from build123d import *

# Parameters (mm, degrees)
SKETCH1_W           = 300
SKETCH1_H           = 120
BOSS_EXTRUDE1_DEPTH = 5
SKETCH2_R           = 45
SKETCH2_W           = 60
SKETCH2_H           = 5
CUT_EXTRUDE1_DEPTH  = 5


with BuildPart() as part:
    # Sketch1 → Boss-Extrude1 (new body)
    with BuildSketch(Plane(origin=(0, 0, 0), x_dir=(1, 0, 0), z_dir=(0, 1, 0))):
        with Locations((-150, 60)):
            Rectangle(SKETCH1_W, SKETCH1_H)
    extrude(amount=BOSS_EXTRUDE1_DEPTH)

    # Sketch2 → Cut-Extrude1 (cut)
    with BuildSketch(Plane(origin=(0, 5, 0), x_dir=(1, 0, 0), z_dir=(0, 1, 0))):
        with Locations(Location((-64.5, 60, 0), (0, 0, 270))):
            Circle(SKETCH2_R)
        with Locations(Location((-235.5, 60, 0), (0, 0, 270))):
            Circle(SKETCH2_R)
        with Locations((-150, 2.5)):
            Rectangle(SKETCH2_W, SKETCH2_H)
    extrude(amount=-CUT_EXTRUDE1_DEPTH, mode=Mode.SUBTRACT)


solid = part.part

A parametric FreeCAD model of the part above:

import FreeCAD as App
import Part
import Sketcher

V = App.Vector
Q = App.Units.Quantity

doc = App.newDocument("Part")
body = doc.addObject("PartDesign::Body", "Body")

sketch1 = doc.addObject("Sketcher::SketchObject", "Sketch")
body.addObject(sketch1)
sketch1.AttachmentSupport = (doc.XZ_Plane, [""])
sketch1.MapMode = "FlatFace"
sketch1.addGeometry(Part.LineSegment(V(-300, -120, 0), V(-300, 0, 0)), False)
sketch1.addGeometry(Part.LineSegment(V(-300, 0, 0), V(0, 0, 0)), False)
sketch1.addGeometry(Part.LineSegment(V(0, 0, 0), V(0, -120, 0)), False)
sketch1.addGeometry(Part.LineSegment(V(0, -120, 0), V(-300, -120, 0)), False)
sketch1.addConstraint(Sketcher.Constraint("Coincident", 0, 2, 1, 1))
sketch1.addConstraint(Sketcher.Constraint("Coincident", 1, 2, 2, 1))
sketch1.addConstraint(Sketcher.Constraint("Coincident", 2, 2, 3, 1))
sketch1.addConstraint(Sketcher.Constraint("Coincident", 3, 2, 0, 1))
sketch1.addConstraint(Sketcher.Constraint("Vertical", 0))
sketch1.addConstraint(Sketcher.Constraint("Horizontal", 1))
sketch1.addConstraint(Sketcher.Constraint("Vertical", 2))
sketch1.addConstraint(Sketcher.Constraint("Horizontal", 3))
sketch1.addConstraint(Sketcher.Constraint("Coincident", 1, 2, -1, 1))
sketch1.addConstraint(Sketcher.Constraint("DistanceX", 1, 1, 1, 2, Q("300 mm")))
sketch1.addConstraint(Sketcher.Constraint("DistanceY", 0, 1, 0, 2, Q("120 mm")))
pad1 = doc.addObject("PartDesign::Pad", "Pad")
body.addObject(pad1)
pad1.Profile = sketch1
pad1.Length = 5
pad1.Reversed = True

sketch2 = doc.addObject("Sketcher::SketchObject", "Sketch001")
body.addObject(sketch2)
sketch2.AttachmentSupport = (doc.XZ_Plane, [""])
sketch2.MapMode = "FlatFace"
sketch2.AttachmentOffset = App.Placement(V(0, 0, -5), App.Rotation())
sketch2.addGeometry(Part.Circle(V(-64, -60, 0), V(0, 0, 1), 45), False)
sketch2.addGeometry(Part.Circle(V(-236, -60, 0), V(0, 0, 1), 45), False)
sketch2.addGeometry(Part.LineSegment(V(-180, -5, 0), V(-180, 0, 0)), False)
sketch2.addGeometry(Part.LineSegment(V(-180, 0, 0), V(-120, 0, 0)), False)
sketch2.addGeometry(Part.LineSegment(V(-120, 0, 0), V(-120, -5, 0)), False)
sketch2.addGeometry(Part.LineSegment(V(-120, -5, 0), V(-180, -5, 0)), False)
sketch2.addConstraint(Sketcher.Constraint("Coincident", 2, 2, 3, 1))
sketch2.addConstraint(Sketcher.Constraint("Coincident", 3, 2, 4, 1))
sketch2.addConstraint(Sketcher.Constraint("Coincident", 4, 2, 5, 1))
sketch2.addConstraint(Sketcher.Constraint("Coincident", 5, 2, 2, 1))
sketch2.addConstraint(Sketcher.Constraint("Vertical", 2))
sketch2.addConstraint(Sketcher.Constraint("Horizontal", 3))
sketch2.addConstraint(Sketcher.Constraint("Vertical", 4))
sketch2.addConstraint(Sketcher.Constraint("Horizontal", 5))
sketch2.addConstraint(Sketcher.Constraint("Equal", 0, 1))
sketch2.addConstraint(Sketcher.Constraint("PointOnObject", 2, 2, -1))
sketch2.addConstraint(Sketcher.Constraint("Horizontal", 0, 3, 1, 3))
sketch2.addConstraint(Sketcher.Constraint("Diameter", 0, Q("90 mm")))
sketch2.addConstraint(Sketcher.Constraint("DistanceX", 3, 1, 3, 2, Q("60 mm")))
sketch2.addConstraint(Sketcher.Constraint("DistanceY", 2, 1, 2, 2, Q("5 mm")))
sketch2.addConstraint(Sketcher.Constraint("DistanceY", 0, 3, -1, 1, Q("60 mm")))
sketch2.addConstraint(Sketcher.Constraint("DistanceX", 2, 2, -1, 1, Q("180 mm")))
sketch2.addConstraint(Sketcher.Constraint("DistanceX", 1, 3, 0, 3, Q("171 mm")))
sketch2.addConstraint(Sketcher.Constraint("DistanceX", 0, 3, -1, 1, Q("64.5 mm")))
pocket1 = doc.addObject("PartDesign::Pocket", "Pocket")
body.addObject(pocket1)
pocket1.Profile = sketch2
pocket1.Length = 5
pocket1.Reversed = True

doc.recompute()
